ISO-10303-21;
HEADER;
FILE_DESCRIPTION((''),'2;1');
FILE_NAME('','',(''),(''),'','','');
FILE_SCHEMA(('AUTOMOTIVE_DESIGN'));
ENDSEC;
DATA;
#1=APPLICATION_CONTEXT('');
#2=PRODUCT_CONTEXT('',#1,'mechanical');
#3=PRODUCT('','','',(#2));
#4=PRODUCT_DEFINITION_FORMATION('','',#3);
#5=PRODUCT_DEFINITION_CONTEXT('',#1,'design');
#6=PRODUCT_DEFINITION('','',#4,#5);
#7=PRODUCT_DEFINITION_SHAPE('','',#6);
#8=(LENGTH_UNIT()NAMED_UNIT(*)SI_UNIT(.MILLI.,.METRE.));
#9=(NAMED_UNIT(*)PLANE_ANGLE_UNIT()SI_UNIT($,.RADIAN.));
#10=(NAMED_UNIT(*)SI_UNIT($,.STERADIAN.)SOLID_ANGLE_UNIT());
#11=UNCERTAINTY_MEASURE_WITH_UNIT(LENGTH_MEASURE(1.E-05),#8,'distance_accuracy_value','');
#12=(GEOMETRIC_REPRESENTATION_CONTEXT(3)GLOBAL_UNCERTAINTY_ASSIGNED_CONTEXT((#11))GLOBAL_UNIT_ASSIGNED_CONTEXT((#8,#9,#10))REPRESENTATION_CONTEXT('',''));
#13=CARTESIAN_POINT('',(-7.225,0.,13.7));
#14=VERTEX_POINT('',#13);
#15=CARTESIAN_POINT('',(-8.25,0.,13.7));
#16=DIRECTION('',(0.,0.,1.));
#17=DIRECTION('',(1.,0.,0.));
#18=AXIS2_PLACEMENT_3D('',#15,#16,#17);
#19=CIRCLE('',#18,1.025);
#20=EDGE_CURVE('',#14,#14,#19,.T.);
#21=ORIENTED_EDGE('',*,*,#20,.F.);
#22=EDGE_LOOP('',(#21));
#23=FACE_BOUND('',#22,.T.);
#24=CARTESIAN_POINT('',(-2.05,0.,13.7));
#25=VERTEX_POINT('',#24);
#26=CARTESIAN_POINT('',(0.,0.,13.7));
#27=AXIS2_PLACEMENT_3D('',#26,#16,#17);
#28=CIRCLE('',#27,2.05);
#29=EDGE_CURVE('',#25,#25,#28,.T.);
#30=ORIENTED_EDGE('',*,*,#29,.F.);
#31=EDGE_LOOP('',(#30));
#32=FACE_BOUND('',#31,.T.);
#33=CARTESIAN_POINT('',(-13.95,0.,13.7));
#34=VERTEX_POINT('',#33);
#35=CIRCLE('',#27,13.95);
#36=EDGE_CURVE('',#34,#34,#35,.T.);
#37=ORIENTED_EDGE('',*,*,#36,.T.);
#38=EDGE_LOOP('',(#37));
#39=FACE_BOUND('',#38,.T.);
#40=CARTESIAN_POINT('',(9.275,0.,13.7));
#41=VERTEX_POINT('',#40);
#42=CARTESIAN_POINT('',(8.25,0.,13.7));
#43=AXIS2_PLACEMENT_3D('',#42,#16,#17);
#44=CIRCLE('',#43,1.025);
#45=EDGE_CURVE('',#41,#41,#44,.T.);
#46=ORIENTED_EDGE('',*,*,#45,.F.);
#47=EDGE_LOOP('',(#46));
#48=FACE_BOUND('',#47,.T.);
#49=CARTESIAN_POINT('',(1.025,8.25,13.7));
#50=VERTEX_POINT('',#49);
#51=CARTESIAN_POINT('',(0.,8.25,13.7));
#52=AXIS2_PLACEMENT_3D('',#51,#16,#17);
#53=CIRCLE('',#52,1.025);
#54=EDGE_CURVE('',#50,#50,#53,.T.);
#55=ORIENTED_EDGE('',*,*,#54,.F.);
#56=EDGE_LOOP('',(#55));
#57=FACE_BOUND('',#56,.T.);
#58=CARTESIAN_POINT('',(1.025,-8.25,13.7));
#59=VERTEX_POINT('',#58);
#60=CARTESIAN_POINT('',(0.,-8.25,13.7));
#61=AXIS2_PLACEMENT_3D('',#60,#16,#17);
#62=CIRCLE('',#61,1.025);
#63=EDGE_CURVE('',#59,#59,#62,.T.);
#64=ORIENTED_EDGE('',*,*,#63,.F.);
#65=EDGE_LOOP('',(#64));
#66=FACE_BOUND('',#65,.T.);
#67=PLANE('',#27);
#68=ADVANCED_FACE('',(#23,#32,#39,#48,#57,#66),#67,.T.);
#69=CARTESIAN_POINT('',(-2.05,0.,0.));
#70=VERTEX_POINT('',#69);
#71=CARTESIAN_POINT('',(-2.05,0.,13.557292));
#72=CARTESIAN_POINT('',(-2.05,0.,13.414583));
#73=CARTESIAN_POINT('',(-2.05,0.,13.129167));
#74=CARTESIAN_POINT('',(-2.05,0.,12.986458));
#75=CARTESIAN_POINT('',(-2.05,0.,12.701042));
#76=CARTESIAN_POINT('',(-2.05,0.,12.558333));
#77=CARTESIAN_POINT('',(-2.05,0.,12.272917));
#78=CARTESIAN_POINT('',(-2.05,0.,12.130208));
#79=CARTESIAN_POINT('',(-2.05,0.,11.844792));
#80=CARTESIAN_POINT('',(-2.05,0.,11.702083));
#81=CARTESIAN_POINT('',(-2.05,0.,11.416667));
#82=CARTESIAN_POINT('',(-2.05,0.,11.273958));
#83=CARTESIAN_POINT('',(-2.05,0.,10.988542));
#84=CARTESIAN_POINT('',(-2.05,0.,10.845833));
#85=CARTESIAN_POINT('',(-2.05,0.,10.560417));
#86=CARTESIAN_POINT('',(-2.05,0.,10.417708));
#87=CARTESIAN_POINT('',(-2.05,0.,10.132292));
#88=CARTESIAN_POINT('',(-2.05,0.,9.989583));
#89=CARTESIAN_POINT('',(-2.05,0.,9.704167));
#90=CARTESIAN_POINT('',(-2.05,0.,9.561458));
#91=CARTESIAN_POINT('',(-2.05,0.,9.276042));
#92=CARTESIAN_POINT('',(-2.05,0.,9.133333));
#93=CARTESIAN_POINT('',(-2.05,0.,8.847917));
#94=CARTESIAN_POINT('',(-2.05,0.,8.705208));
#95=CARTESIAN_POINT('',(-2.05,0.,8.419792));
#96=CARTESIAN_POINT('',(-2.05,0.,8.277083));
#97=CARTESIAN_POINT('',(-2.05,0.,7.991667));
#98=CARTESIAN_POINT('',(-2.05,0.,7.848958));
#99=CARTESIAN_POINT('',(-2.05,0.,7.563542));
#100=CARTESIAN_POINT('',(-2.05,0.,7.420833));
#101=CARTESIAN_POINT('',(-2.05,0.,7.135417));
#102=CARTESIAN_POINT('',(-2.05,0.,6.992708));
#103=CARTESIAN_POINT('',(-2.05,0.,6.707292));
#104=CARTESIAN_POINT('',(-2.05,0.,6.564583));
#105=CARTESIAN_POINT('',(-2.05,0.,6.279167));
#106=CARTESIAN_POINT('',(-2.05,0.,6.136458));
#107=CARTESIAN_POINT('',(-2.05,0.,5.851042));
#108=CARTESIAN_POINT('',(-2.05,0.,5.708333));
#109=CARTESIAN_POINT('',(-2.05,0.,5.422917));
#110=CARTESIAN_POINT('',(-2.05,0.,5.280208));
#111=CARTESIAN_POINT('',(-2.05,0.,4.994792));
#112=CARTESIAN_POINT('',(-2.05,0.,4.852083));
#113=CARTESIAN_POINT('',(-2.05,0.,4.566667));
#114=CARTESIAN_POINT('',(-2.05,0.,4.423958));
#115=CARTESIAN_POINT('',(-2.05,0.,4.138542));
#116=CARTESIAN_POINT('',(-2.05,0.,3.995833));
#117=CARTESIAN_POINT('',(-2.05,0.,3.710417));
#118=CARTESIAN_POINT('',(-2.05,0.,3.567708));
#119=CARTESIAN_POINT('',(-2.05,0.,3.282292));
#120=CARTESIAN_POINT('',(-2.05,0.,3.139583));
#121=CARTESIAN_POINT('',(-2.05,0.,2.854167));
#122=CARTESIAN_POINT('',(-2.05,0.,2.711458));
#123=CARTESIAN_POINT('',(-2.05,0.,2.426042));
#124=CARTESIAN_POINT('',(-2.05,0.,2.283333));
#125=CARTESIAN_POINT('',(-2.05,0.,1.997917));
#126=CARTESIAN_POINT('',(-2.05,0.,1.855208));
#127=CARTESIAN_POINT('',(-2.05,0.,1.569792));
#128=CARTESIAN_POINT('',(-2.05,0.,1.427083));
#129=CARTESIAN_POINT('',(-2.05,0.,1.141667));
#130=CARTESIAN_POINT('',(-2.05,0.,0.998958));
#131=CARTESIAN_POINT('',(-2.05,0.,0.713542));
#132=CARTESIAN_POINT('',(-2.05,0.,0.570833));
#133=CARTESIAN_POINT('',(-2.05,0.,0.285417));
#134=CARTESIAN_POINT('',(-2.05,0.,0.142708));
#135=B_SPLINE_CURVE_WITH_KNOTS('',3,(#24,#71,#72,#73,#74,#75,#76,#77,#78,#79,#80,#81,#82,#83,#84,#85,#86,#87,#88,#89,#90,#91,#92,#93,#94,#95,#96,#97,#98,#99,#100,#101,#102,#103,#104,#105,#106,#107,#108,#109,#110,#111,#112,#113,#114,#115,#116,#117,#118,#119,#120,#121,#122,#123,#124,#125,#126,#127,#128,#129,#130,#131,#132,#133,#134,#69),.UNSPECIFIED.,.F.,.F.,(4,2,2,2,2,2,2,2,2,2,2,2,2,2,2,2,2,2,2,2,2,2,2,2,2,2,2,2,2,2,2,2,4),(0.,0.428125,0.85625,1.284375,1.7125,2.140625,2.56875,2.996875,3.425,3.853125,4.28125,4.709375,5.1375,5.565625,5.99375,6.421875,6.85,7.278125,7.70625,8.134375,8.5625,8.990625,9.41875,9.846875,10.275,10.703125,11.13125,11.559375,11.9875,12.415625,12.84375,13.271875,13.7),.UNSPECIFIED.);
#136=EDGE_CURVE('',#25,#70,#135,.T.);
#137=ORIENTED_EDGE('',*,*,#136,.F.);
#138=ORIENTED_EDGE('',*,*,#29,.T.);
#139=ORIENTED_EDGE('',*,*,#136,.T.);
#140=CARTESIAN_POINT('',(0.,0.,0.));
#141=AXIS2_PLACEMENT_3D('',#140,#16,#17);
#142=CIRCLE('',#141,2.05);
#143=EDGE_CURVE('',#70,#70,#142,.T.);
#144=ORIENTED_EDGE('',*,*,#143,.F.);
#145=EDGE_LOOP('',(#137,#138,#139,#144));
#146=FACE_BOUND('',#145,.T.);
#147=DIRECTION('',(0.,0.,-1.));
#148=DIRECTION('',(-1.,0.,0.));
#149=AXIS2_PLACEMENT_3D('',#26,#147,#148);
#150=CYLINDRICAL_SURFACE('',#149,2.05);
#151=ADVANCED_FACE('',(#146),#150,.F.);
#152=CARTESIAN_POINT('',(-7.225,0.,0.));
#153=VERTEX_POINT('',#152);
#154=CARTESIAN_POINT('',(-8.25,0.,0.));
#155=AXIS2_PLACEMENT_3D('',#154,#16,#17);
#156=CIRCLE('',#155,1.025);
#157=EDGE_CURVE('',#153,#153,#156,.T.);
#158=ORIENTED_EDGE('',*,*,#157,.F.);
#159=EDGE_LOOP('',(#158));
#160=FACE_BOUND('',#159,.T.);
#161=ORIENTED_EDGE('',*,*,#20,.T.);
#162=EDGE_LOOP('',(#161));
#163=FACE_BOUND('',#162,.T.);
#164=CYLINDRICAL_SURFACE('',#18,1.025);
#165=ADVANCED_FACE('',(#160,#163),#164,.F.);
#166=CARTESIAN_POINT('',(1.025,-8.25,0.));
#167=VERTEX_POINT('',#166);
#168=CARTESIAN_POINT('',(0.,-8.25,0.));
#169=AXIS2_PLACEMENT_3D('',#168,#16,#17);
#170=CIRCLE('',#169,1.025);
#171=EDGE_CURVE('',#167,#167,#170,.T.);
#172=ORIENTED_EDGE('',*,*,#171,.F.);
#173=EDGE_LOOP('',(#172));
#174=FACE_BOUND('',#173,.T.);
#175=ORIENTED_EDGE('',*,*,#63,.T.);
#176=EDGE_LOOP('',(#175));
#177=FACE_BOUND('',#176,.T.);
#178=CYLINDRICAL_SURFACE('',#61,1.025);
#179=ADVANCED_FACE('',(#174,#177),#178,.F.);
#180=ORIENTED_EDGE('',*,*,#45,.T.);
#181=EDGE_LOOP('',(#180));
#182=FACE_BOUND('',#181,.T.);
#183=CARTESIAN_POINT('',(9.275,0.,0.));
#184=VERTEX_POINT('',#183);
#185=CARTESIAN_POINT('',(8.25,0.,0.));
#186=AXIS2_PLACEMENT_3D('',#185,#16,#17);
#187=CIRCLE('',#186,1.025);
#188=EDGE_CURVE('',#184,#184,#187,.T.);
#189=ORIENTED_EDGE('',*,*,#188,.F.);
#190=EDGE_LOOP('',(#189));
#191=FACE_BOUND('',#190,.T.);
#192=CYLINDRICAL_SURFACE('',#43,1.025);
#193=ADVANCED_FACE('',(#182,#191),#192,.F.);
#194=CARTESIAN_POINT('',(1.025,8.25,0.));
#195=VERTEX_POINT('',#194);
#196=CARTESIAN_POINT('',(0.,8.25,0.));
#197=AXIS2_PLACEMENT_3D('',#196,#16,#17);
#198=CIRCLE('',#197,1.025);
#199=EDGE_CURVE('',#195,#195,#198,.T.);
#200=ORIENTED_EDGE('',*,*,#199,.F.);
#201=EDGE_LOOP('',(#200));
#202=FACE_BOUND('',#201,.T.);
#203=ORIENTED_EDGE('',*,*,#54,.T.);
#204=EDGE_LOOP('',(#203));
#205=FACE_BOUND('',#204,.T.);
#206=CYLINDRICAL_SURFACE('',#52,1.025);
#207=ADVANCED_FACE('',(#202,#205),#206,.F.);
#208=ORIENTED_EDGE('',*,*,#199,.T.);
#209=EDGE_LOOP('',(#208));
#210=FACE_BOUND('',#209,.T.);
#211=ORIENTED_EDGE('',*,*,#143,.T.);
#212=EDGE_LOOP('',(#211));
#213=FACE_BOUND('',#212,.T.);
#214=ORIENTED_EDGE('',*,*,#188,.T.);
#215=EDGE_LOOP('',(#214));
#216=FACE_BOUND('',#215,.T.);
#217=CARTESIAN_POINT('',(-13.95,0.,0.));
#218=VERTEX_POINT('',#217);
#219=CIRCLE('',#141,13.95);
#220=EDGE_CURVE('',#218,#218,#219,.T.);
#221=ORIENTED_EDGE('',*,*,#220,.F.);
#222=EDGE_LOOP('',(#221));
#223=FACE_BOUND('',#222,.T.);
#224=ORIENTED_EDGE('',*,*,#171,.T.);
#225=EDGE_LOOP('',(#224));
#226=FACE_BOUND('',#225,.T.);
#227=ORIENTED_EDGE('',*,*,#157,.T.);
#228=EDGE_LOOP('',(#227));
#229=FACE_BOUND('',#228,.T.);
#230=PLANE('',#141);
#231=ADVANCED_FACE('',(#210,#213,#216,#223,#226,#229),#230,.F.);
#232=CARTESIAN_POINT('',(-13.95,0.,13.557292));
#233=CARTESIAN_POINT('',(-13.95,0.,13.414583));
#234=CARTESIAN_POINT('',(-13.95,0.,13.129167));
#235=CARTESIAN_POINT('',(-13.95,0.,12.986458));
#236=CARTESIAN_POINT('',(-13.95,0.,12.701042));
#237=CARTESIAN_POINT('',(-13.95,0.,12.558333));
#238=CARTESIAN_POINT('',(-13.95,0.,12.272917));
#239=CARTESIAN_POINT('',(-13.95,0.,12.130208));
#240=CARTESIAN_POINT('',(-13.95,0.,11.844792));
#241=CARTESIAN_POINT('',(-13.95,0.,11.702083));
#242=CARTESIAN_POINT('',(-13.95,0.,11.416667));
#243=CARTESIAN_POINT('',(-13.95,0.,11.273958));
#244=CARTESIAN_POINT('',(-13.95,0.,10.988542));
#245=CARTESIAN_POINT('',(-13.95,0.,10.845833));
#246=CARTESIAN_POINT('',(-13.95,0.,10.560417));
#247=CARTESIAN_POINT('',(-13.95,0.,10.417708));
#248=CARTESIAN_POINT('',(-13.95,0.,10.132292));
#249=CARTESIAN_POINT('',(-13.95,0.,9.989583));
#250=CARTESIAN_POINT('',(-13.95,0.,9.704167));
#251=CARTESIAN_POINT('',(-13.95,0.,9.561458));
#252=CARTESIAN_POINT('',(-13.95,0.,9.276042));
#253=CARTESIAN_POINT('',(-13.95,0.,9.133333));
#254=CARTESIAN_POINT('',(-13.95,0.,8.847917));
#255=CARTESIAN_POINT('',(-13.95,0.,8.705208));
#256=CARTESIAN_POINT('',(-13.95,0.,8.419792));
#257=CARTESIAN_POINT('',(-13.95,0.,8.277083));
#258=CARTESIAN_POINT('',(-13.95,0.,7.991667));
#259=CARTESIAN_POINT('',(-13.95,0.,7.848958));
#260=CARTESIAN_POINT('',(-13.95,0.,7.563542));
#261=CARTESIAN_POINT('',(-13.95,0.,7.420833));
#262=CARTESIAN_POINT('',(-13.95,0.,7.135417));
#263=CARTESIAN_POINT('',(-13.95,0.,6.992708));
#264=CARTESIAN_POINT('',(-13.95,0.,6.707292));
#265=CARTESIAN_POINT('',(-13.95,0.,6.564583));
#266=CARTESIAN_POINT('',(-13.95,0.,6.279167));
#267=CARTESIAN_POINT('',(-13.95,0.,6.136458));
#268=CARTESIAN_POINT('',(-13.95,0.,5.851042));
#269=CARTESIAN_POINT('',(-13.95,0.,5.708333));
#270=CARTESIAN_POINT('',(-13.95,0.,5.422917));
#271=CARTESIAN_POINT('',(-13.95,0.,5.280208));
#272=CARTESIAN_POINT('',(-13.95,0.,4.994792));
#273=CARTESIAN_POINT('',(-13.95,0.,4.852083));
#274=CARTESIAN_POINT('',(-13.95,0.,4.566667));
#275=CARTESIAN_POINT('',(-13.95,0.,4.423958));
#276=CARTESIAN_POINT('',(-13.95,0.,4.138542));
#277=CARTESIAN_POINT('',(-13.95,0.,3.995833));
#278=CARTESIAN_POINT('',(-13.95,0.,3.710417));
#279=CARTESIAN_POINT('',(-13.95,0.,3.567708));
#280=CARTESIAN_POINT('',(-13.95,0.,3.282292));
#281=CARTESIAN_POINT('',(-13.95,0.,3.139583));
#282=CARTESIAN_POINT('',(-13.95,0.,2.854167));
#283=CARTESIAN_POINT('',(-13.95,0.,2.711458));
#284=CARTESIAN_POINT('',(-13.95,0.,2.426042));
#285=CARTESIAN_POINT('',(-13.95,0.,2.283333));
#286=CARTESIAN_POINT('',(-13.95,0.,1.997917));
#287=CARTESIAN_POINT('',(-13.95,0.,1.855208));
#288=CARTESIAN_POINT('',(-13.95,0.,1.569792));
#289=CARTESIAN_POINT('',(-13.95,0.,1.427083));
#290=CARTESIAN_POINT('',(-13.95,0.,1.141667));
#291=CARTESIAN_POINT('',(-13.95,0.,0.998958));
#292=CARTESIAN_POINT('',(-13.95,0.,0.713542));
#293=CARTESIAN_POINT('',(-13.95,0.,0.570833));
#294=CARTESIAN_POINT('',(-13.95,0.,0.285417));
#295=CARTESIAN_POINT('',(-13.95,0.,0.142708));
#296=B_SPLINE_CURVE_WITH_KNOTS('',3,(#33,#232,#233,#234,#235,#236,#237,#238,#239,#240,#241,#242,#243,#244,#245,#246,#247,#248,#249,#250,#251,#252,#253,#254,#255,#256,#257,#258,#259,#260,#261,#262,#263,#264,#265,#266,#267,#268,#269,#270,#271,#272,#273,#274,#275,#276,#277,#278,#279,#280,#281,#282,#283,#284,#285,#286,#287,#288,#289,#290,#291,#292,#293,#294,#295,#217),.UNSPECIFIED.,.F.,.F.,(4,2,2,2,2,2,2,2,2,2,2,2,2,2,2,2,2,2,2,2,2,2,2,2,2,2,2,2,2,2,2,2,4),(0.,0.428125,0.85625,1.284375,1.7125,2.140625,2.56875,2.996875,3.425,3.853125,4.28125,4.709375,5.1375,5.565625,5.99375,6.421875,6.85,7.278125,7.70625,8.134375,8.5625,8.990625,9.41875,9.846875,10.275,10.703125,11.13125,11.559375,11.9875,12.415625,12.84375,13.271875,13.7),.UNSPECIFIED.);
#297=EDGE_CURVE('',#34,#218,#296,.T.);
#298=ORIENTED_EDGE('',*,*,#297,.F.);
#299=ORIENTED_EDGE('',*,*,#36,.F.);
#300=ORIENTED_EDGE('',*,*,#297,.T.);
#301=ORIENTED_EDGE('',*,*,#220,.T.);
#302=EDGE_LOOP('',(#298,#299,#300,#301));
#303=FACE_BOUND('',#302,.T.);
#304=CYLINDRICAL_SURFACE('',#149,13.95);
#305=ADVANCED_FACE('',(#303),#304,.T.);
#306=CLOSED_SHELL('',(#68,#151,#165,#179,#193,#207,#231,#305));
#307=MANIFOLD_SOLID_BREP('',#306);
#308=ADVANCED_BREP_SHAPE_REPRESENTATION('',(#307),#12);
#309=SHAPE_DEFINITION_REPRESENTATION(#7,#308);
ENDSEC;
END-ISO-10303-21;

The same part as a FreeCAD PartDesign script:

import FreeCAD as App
import Part
import Sketcher
from FreeCAD import Vector

doc = App.newDocument("Part")
params = doc.addObject("Spreadsheet::Sheet", "Params")
for row, (alias, value) in enumerate([
    ("sketch1_diameter", "27.9 mm"),
    ("sketch1_diameter2", "4.1 mm"),
    ("pad1_length", "13.7 mm"),
    ("sketch2_diameter", "2.05 mm"),
    ("hole_diameter", "2.05 mm"),
], start=1):
    params.set(f"A{row}", alias)
    params.set(f"B{row}", "=" + value)
    params.setAlias(f"B{row}", alias)

body = doc.addObject("PartDesign::Body", "Body")

sketch1 = body.newObject("Sketcher::SketchObject", "Sketch")
sketch1.AttachmentSupport = (doc.getObject("XY_Plane"), [""])
sketch1.MapMode = "FlatFace"
sketch1.addGeometry(Part.Circle(Vector(0, 0, 0), Vector(0, 0, 1), 13.9), False)
sketch1.addGeometry(Part.Circle(Vector(0, 0, 0), Vector(0, 0, 1), 2), False)
sketch1.addConstraint(Sketcher.Constraint("Coincident", 0, 3, -1, 1))
sketch1.addConstraint(Sketcher.Constraint("Coincident", 1, 3, -1, 1))
sketch1.addConstraint(Sketcher.Constraint("Diameter", 0, 27.9))
sketch1.addConstraint(Sketcher.Constraint("Diameter", 1, 4.1))
sketch1.setExpression("Constraints[2]", "Params.sketch1_diameter")
sketch1.setExpression("Constraints[3]", "Params.sketch1_diameter2")
pad1 = body.newObject("PartDesign::Pad", "Pad")
pad1.Profile = sketch1
pad1.setExpression("Length", "Params.pad1_length")

sketch2 = body.newObject("Sketcher::SketchObject", "Sketch001")
sketch2.AttachmentSupport = (doc.getObject("XY_Plane"), [""])
sketch2.MapMode = "FlatFace"
sketch2.AttachmentOffset = App.Placement(Vector(0, 0, 13.7), App.Rotation())
sketch2.addGeometry(Part.Circle(Vector(0, 8.2, 0), Vector(0, 0, 1), 1), False)
sketch2.addGeometry(Part.Circle(Vector(8.2, 0, 0), Vector(0, 0, 1), 1), False)
sketch2.addGeometry(Part.Circle(Vector(0, -8.2, 0), Vector(0, 0, 1), 1), False)
sketch2.addGeometry(Part.Circle(Vector(-8.2, 0, 0), Vector(0, 0, 1), 1), False)
sketch2.addConstraint(Sketcher.Constraint("Equal", 0, 1))
sketch2.addConstraint(Sketcher.Constraint("Equal", 1, 2))
sketch2.addConstraint(Sketcher.Constraint("Equal", 2, 3))
sketch2.addConstraint(Sketcher.Constraint("Symmetric", 0, 3, 2, 3, -1, 1))
sketch2.addConstraint(Sketcher.Constraint("Symmetric", 1, 3, 3, 3, -1, 1))
sketch2.addConstraint(Sketcher.Constraint("PointOnObject", 0, 3, -2))
sketch2.addConstraint(Sketcher.Constraint("PointOnObject", 1, 3, -1))
sketch2.addConstraint(Sketcher.Constraint("Diameter", 0, 2.05))
sketch2.addConstraint(Sketcher.Constraint("DistanceY", 2, 3, 0, 3, 16.5))
sketch2.addConstraint(Sketcher.Constraint("DistanceX", 3, 3, 1, 3, 16.5))
sketch2.setExpression("Constraints[7]", "Params.sketch2_diameter")
doc.recompute()
hole = body.newObject("PartDesign::Hole", "Hole")
hole.Profile = sketch2
hole.ThreadType = "None"
hole.setExpression("Diameter", "Params.hole_diameter")
hole.DepthType = "ThroughAll"

doc.recompute()
